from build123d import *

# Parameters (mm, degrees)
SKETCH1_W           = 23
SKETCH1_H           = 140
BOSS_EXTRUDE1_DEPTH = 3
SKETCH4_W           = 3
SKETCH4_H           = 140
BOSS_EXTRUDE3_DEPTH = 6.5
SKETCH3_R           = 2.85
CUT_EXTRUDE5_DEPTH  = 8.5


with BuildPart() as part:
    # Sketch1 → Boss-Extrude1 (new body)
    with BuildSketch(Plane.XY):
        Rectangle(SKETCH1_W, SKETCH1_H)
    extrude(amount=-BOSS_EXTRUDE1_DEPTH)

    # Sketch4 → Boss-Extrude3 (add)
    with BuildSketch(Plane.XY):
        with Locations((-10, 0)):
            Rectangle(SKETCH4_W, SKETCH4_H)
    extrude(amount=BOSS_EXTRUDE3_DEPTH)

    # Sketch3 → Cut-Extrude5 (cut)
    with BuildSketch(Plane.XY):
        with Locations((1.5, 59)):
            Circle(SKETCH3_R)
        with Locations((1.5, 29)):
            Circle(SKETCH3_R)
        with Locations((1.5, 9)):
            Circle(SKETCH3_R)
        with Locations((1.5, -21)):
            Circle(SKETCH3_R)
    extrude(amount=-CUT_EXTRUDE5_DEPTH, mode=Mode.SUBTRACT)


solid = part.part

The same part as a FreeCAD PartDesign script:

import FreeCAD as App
import Part
import Sketcher


def add_polygon(sketch, points):
    """Adds a closed chain of lines whose ends are joined by coincident constraints."""
    first, n = sketch.GeometryCount, len(points)
    for a, b in zip(points, points[1:] + points[:1]):
        sketch.addGeometry(Part.LineSegment(App.Vector(*a, 0), App.Vector(*b, 0)), False)
    for i in range(n):
        sketch.addConstraint(Sketcher.Constraint("Coincident", first + i, 2, first + (i + 1) % n, 1))

doc = App.newDocument("Part")
params = doc.addObject("Spreadsheet::Sheet", "Params")
for row, (alias, value) in enumerate([
    ("sketch1_width", "23 mm"),
    ("sketch1_height", "140 mm"),
    ("pad1_length", "3 mm"),
    ("sketch2_width", "3 mm"),
    ("sketch2_height", "140 mm"),
    ("pad2_length", "6.5 mm"),
    ("sketch3_diameter", "5.7 mm"),
    ("pocket1_length", "8.5 mm"),
], start=1):
    params.set(f"A{row}", alias)
    params.set(f"B{row}", "=" + value)
    params.setAlias(f"B{row}", alias)

body = doc.addObject("PartDesign::Body", "Body")

sketch1 = body.newObject("Sketcher::SketchObject", "Sketch")
sketch1.AttachmentSupport = (doc.getObject("XY_Plane"), [""])
sketch1.MapMode = "FlatFace"
add_polygon(sketch1, [(-12, 70), (-12, -70), (12, -70), (12, 70)])
sketch1.addConstraint([
    Sketcher.Constraint("Vertical", 0),
    Sketcher.Constraint("Horizontal", 1),
    Sketcher.Constraint("Vertical", 2),
    Sketcher.Constraint("Horizontal", 3),
    Sketcher.Constraint("Symmetric", 0, 2, 2, 2, -1, 1),
    Sketcher.Constraint("DistanceX", 1, 1, 1, 2, 23.0),
    Sketcher.Constraint("DistanceY", 0, 2, 0, 1, 140.0),
])
sketch1.setExpression("Constraints[9]", "Params.sketch1_width")
sketch1.setExpression("Constraints[10]", "Params.sketch1_height")
pad1 = body.newObject("PartDesign::Pad", "Pad")
pad1.Profile = sketch1
pad1.setExpression("Length", "Params.pad1_length")
pad1.Reversed = True

sketch2 = body.newObject("Sketcher::SketchObject", "Sketch001")
sketch2.AttachmentSupport = (doc.getObject("XY_Plane"), [""])
sketch2.MapMode = "FlatFace"
add_polygon(sketch2, [(-11.5, 70), (-11.5, -70), (-8.5, -70), (-8.5, 70)])
sketch2.addConstraint([
    Sketcher.Constraint("Vertical", 0),
    Sketcher.Constraint("Horizontal", 1),
    Sketcher.Constraint("Vertical", 2),
    Sketcher.Constraint("Horizontal", 3),
    Sketcher.Constraint("DistanceX", 1, 1, 1, 2, 3.0),
    Sketcher.Constraint("DistanceY", 0, 2, 0, 1, 140.0),
    Sketcher.Constraint("DistanceY", 0, 2, -1, 1, 70.0),
    Sketcher.Constraint("DistanceX", 0, 2, -1, 1, 11.5),
])
sketch2.setExpression("Constraints[8]", "Params.sketch2_width")
sketch2.setExpression("Constraints[9]", "Params.sketch2_height")
pad2 = body.newObject("PartDesign::Pad", "Pad001")
pad2.Profile = sketch2
pad2.setExpression("Length", "Params.pad2_length")

sketch3 = body.newObject("Sketcher::SketchObject", "Sketch002")
sketch3.AttachmentSupport = (doc.getObject("XY_Plane"), [""])
sketch3.MapMode = "FlatFace"
sketch3.addGeometry([
    Part.Circle(App.Vector(1.5, 59, 0), App.Vector(0, 0, 1), 2.9),
    Part.Circle(App.Vector(1.5, 29, 0), App.Vector(0, 0, 1), 2.9),
    Part.Circle(App.Vector(1.5, 9, 0), App.Vector(0, 0, 1), 2.9),
    Part.Circle(App.Vector(1.5, -21, 0), App.Vector(0, 0, 1), 2.9),
], False)
sketch3.addConstraint([
    Sketcher.Constraint("Equal", 0, 1),
    Sketcher.Constraint("Equal", 1, 2),
    Sketcher.Constraint("Equal", 2, 3),
    Sketcher.Constraint("Vertical", 0, 3, 1, 3),
    Sketcher.Constraint("Vertical", 1, 3, 2, 3),
    Sketcher.Constraint("Vertical", 2, 3, 3, 3),
    Sketcher.Constraint("Diameter", 0, 5.7),
    Sketcher.Constraint("DistanceY", -1, 1, 0, 3, 59.0),
    Sketcher.Constraint("DistanceY", -1, 1, 1, 3, 29.0),
    Sketcher.Constraint("DistanceY", -1, 1, 2, 3, 9.0),
    Sketcher.Constraint("DistanceY", 3, 3, -1, 1, 21.0),
    Sketcher.Constraint("DistanceX", -1, 1, 0, 3, 1.5),
])
sketch3.setExpression("Constraints[6]", "Params.sketch3_diameter")
pocket1 = body.newObject("PartDesign::Pocket", "Pocket")
pocket1.Profile = sketch3
pocket1.setExpression("Length", "Params.pocket1_length")

doc.recompute()
